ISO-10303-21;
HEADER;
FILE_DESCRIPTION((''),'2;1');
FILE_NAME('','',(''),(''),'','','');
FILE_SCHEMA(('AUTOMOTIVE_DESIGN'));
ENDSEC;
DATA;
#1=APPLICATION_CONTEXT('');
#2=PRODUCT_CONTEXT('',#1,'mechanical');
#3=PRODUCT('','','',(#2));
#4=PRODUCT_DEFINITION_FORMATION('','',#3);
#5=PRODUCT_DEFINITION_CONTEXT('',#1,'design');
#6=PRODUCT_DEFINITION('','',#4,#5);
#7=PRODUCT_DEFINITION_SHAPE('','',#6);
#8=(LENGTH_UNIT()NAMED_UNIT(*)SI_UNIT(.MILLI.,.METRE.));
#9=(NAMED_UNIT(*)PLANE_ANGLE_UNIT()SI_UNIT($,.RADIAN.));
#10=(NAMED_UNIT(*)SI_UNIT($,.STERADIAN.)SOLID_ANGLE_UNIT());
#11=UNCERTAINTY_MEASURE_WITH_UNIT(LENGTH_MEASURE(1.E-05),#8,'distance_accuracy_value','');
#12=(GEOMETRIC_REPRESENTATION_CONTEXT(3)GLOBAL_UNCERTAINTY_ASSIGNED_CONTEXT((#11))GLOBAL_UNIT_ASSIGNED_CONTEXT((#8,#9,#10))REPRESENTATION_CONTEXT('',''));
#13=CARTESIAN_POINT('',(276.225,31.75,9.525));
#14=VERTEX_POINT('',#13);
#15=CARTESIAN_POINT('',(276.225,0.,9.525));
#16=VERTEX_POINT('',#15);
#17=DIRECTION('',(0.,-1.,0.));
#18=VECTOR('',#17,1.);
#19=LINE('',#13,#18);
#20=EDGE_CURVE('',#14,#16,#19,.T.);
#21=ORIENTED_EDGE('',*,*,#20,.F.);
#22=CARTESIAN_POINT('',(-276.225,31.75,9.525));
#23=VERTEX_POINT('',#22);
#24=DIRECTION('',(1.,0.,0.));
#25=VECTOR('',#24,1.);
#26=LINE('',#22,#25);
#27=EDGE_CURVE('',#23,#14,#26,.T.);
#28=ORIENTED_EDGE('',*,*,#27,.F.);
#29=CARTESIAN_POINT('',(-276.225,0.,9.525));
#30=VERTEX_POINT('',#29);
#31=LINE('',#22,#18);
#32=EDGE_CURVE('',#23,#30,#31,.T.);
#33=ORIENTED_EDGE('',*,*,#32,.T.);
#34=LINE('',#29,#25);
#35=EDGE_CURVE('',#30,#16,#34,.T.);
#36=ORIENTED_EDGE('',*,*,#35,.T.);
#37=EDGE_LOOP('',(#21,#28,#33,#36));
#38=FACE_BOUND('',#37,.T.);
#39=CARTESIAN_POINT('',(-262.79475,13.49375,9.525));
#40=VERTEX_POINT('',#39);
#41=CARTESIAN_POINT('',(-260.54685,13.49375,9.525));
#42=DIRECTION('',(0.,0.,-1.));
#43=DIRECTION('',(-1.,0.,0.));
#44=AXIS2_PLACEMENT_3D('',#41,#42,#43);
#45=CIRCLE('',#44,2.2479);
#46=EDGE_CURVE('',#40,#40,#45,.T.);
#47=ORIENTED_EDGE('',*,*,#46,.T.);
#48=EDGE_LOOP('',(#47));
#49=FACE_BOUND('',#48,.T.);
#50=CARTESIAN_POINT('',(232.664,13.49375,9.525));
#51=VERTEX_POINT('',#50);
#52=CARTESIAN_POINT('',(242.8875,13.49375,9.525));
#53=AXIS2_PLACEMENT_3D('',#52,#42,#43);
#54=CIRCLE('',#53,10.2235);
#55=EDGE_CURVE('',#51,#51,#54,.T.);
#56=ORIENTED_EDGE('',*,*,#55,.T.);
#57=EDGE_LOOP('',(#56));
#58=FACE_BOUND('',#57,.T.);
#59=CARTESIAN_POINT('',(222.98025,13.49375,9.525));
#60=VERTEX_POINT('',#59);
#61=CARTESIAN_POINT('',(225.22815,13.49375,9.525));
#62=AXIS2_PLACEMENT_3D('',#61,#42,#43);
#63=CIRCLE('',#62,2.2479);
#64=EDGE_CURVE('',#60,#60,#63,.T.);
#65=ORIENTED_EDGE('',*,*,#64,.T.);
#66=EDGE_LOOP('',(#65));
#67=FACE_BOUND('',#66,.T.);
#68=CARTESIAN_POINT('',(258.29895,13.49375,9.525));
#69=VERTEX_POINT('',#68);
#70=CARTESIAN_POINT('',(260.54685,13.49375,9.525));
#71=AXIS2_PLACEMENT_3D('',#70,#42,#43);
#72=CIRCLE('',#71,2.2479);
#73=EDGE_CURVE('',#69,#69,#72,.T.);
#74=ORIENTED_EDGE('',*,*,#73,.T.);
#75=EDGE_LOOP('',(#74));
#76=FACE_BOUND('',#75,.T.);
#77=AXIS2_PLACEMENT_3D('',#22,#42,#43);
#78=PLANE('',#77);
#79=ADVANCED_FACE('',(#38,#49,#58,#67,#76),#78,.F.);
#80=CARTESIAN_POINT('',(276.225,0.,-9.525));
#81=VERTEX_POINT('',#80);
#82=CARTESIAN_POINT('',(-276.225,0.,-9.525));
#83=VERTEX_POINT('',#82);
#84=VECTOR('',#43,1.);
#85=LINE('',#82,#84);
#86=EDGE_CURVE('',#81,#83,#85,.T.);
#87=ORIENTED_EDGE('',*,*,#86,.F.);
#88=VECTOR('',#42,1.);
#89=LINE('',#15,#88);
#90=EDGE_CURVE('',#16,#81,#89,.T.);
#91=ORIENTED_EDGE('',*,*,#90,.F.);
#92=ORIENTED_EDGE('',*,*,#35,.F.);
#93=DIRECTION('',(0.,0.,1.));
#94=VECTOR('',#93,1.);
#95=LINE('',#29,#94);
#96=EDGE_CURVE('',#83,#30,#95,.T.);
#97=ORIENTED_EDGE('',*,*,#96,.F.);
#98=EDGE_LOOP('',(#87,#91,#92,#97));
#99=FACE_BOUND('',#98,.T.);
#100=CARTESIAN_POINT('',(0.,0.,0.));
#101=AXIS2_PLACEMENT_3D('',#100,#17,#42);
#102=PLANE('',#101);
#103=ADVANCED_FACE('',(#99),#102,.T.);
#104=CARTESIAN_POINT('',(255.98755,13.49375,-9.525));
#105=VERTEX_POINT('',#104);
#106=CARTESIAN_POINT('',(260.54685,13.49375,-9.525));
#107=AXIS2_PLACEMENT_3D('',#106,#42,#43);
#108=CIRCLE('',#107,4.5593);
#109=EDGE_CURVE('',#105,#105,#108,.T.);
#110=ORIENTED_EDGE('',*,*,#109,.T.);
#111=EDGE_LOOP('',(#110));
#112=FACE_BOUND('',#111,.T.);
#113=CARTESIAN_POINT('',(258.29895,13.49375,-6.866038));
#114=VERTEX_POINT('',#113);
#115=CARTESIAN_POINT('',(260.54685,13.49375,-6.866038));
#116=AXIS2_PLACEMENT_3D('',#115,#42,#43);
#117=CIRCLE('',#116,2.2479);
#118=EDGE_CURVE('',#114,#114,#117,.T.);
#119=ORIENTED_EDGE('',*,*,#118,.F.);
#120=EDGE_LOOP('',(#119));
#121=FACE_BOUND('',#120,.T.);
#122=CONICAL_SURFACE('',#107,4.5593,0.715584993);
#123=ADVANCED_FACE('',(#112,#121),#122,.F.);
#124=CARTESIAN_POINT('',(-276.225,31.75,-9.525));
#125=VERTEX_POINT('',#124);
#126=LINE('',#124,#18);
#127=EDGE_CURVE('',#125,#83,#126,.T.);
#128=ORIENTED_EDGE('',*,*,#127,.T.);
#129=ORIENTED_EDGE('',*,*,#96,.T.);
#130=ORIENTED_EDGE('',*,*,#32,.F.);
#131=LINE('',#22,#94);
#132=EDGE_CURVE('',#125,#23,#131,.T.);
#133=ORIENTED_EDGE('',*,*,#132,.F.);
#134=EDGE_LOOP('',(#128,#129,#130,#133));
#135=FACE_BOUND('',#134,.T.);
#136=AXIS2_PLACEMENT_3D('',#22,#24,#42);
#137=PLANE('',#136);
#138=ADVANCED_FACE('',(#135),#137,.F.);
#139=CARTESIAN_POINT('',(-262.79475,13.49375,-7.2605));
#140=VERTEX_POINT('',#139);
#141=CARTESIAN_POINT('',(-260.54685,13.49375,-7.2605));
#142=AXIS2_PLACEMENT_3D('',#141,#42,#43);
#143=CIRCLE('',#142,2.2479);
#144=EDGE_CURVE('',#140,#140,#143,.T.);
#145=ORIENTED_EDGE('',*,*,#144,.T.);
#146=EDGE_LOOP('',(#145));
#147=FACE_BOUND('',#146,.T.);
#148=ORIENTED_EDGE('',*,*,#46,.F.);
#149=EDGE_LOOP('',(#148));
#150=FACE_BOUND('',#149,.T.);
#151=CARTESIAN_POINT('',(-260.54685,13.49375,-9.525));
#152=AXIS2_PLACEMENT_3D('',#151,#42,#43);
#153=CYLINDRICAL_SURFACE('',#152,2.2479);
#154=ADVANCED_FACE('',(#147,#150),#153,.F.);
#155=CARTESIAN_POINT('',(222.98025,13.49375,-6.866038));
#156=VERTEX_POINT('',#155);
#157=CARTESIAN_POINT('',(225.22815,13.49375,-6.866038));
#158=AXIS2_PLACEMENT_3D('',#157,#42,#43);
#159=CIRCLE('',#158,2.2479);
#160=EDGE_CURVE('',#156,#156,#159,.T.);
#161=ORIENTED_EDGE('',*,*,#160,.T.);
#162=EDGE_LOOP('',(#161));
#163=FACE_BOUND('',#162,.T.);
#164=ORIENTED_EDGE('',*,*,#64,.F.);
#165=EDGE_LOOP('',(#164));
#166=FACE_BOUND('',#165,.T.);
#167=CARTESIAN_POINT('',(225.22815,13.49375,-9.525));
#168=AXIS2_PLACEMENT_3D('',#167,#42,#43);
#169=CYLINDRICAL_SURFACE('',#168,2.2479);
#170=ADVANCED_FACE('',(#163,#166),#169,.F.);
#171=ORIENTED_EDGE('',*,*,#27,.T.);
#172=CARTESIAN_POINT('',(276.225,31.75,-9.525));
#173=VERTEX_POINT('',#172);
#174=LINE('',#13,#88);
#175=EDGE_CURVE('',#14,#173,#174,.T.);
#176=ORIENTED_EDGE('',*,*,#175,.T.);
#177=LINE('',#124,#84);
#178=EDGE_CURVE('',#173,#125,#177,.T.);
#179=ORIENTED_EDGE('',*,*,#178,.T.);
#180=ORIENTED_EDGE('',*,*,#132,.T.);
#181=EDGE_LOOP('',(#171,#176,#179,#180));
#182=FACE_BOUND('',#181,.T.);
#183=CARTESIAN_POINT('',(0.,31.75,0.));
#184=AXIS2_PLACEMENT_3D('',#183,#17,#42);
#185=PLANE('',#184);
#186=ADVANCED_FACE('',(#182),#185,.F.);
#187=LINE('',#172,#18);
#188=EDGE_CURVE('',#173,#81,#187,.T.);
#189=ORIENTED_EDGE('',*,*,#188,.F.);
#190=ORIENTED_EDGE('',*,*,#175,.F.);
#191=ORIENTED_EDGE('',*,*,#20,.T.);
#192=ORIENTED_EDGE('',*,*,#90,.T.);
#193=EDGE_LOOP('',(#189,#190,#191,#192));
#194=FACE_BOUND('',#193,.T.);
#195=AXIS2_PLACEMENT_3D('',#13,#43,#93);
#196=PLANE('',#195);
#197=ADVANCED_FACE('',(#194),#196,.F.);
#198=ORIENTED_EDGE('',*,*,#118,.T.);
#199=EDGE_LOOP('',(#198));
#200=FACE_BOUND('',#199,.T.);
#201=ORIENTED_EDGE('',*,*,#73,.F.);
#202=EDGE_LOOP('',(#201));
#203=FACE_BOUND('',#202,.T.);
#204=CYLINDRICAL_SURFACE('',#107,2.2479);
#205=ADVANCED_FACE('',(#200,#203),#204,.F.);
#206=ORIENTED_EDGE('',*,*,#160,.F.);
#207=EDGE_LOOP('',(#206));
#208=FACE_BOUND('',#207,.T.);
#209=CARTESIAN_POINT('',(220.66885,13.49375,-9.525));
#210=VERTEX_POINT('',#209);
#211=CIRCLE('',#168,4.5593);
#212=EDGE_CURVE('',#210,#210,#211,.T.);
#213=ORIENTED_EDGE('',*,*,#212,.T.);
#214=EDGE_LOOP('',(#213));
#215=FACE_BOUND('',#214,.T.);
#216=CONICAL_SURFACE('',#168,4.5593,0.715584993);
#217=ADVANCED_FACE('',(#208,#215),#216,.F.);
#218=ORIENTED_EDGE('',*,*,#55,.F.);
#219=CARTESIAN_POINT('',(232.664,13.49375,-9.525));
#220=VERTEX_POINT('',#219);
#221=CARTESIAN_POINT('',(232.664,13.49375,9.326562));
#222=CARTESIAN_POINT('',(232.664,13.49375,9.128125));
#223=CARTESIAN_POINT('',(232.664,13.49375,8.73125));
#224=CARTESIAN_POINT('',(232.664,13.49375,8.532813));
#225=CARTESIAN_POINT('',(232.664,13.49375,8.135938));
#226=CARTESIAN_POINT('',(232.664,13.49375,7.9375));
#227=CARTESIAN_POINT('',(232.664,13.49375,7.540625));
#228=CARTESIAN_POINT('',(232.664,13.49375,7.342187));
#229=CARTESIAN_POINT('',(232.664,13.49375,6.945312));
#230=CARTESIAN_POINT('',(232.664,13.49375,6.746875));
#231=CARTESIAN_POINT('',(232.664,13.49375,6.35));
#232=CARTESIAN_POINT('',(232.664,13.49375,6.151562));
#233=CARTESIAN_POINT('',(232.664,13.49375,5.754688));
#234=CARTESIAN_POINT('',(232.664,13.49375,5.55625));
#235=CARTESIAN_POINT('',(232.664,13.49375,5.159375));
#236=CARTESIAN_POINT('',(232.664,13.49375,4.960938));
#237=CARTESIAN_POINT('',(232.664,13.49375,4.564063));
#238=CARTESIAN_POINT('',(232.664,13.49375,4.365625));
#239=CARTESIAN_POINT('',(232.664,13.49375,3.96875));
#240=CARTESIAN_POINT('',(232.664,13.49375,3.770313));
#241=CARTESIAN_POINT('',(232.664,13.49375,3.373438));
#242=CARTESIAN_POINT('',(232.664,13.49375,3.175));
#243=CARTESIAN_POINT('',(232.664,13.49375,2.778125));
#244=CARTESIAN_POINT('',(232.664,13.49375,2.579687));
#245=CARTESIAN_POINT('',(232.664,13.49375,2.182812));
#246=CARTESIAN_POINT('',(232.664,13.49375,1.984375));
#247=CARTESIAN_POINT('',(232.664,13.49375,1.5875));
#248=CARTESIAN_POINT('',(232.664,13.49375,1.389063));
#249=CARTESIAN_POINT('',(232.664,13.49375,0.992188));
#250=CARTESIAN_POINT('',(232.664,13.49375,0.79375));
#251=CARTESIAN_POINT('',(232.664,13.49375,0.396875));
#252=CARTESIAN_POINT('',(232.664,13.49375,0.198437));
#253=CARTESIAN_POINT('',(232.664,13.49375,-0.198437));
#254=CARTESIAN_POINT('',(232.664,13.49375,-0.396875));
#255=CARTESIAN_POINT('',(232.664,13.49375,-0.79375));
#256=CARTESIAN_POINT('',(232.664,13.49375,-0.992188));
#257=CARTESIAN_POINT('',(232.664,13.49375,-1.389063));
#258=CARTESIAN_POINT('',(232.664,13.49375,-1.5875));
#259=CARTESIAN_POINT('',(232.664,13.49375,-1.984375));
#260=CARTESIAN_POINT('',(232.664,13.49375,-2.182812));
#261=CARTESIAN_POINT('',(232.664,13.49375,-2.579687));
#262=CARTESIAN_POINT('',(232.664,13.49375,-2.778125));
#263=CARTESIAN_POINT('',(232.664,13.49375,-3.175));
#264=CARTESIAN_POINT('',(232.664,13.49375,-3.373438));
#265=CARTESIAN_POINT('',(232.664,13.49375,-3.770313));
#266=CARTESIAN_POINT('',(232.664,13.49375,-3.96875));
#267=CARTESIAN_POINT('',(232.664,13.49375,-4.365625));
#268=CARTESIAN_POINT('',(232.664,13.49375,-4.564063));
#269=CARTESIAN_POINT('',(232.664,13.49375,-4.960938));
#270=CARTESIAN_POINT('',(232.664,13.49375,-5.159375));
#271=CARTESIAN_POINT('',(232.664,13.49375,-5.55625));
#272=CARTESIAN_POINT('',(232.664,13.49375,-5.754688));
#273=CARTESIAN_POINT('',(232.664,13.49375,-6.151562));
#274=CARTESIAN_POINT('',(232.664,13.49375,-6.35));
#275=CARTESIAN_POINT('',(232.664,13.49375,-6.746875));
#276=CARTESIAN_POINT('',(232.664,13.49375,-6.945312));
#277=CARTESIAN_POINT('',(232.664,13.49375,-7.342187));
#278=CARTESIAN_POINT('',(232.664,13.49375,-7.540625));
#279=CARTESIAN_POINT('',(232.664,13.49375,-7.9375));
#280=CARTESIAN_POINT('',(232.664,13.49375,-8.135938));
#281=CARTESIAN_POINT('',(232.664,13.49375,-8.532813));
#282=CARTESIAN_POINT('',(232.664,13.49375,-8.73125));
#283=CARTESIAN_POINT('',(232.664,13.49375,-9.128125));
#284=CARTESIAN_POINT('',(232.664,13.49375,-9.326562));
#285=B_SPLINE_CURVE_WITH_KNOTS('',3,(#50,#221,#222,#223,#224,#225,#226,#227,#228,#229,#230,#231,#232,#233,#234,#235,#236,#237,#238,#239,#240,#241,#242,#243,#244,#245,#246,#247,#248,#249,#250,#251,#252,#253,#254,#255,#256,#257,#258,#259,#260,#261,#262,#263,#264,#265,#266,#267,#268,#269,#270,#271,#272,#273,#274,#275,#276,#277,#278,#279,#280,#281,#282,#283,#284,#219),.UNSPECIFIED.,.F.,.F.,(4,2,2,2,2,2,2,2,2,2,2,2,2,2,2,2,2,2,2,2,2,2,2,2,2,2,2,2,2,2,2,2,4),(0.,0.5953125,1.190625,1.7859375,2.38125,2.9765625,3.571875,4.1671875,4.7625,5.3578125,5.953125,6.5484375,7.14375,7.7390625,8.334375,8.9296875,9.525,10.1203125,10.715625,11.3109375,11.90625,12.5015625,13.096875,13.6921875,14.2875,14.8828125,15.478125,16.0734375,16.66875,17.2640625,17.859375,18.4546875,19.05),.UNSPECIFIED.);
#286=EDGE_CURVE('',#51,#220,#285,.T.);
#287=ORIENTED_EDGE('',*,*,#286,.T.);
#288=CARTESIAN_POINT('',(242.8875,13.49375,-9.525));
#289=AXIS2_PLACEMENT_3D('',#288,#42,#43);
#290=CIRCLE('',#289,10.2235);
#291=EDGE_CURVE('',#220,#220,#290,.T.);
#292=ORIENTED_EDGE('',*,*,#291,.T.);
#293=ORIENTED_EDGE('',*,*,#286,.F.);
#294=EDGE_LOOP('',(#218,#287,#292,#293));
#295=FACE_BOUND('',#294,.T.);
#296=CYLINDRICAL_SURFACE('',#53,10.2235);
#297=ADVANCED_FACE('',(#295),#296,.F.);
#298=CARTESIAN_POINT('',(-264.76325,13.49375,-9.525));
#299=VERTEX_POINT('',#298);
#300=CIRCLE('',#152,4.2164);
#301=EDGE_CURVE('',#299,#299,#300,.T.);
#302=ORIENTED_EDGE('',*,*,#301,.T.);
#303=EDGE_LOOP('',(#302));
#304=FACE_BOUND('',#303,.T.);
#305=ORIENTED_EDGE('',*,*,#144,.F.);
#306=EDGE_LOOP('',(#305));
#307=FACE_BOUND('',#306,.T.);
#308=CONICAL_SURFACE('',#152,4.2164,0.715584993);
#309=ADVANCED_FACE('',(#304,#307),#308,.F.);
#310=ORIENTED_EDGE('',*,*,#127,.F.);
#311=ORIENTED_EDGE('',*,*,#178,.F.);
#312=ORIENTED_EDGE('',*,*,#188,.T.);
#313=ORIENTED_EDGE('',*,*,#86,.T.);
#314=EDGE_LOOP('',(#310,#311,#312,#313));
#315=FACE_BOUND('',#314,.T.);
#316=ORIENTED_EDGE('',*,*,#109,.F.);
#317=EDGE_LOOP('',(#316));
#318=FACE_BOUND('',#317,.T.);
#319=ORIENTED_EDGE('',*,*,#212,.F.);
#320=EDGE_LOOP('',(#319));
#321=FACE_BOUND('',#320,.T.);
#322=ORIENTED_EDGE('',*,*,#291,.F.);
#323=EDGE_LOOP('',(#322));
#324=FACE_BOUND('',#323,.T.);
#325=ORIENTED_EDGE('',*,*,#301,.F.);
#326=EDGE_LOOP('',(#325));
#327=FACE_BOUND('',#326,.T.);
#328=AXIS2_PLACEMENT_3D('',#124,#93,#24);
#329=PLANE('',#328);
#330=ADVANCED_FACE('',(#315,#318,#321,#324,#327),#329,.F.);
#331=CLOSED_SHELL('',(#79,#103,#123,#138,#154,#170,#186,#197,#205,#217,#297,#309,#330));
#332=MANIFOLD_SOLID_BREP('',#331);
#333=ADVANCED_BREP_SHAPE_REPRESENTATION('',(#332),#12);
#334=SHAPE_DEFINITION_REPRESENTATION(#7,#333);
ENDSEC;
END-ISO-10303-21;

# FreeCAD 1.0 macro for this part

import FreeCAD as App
import Part
import Sketcher
from FreeCAD import Vector
Q = App.Units.Quantity


def add_polygon(sketch, points):
    """Adds a closed chain of lines whose ends are joined by coincident constraints."""
    first, n = sketch.GeometryCount, len(points)
    for a, b in zip(points, points[1:] + points[:1]):
        sketch.addGeometry(Part.LineSegment(App.Vector(*a, 0), App.Vector(*b, 0)), False)
    for i in range(n):
        sketch.addConstraint(Sketcher.Constraint("Coincident", first + i, 2, first + (i + 1) % n, 1))

doc = App.newDocument("Part")
body = doc.addObject("PartDesign::Body", "Body")

# Sketch on XZ plane
sketch1 = doc.addObject("Sketcher::SketchObject", "Sketch")
body.addObject(sketch1)
sketch1.AttachmentSupport = (doc.XZ_Plane, [""])
sketch1.MapMode = "FlatFace"
add_polygon(sketch1, [(-276.225, -9.525), (-276.225, 9.525), (276.225, 9.525), (276.225, -9.525)])  # lines 0-3
sketch1.addConstraint([
    Sketcher.Constraint("Vertical", 0),
    Sketcher.Constraint("Horizontal", 1),
    Sketcher.Constraint("Vertical", 2),
    Sketcher.Constraint("Horizontal", 3),
    Sketcher.Constraint("Symmetric", 0, 2, 2, 2, -1, 1),
    Sketcher.Constraint("DistanceX", 1, 1, 1, 2, Q("21.75 in")),
    Sketcher.Constraint("DistanceY", 0, 1, 0, 2, Q("0.75 in")),
])
pad1 = doc.addObject("PartDesign::Pad", "Pad")
body.addObject(pad1)
pad1.Profile = sketch1
pad1.Length = Q("1.25 in")
pad1.Reversed = True

# Sketch on XY plane
sketch2 = doc.addObject("Sketcher::SketchObject", "Sketch001")
body.addObject(sketch2)
sketch2.AttachmentSupport = (doc.XY_Plane, [""])
sketch2.MapMode = "FlatFace"
sketch2.AttachmentOffset = App.Placement(Vector(0, 0, -0.375 * 25.4), App.Rotation())
sketch2.addGeometry(Part.Circle(Vector(242.8875, 13.49375, 0), Vector(0, 0, 1), 10.2235), False)
sketch2.addConstraint([
    Sketcher.Constraint("Diameter", 0, Q("0.805 in")),
    Sketcher.Constraint("DistanceX", -1, 1, 0, 3, Q("9.5625 in")),
    Sketcher.Constraint("DistanceY", -1, 1, 0, 3, Q("0.53125 in")),
])
pocket1 = doc.addObject("PartDesign::Pocket", "Pocket")
body.addObject(pocket1)
pocket1.Profile = sketch2
pocket1.Type = "ThroughAll"
pocket1.Reversed = True

# Sketch on XY plane
sketch3 = doc.addObject("Sketcher::SketchObject", "Sketch002")
body.addObject(sketch3)
sketch3.AttachmentSupport = (doc.XY_Plane, [""])
sketch3.MapMode = "FlatFace"
sketch3.AttachmentOffset = App.Placement(Vector(0, 0, -0.375 * 25.4), App.Rotation())
sketch3.addGeometry([
    Part.Circle(Vector(260.54685, 13.49375, 0), Vector(0, 0, 1), 2.2479),
    Part.Circle(Vector(225.22815, 13.49375, 0), Vector(0, 0, 1), 2.2479),
], False)
sketch3.addConstraint([
    Sketcher.Constraint("Equal", 0, 1),
    Sketcher.Constraint("Horizontal", 0, 3, 1, 3),
    Sketcher.Constraint("Diameter", 0, Q("0.177 in")),
    Sketcher.Constraint("DistanceY", -1, 1, 0, 3, Q("0.53125 in")),
    Sketcher.Constraint("DistanceX", 1, 3, 0, 3, Q("1.3905 in")),
    Sketcher.Constraint("DistanceX", -1, 1, 0, 3, 260.54685),
])
doc.recompute()
hole = doc.addObject("PartDesign::Hole", "Hole")
body.addObject(hole)
hole.Profile = sketch3
hole.ThreadType = "None"
hole.Diameter = Q("0.177 in")
hole.DepthType = "ThroughAll"
hole.HoleCutType = "Countersink"
hole.HoleCutDiameter = Q("0.359 in")
hole.HoleCutCountersinkAngle = 82
hole.Reversed = True

# Sketch on XY plane
sketch4 = doc.addObject("Sketcher::SketchObject", "Sketch003")
body.addObject(sketch4)
sketch4.AttachmentSupport = (doc.XY_Plane, [""])
sketch4.MapMode = "FlatFace"
sketch4.AttachmentOffset = App.Placement(Vector(0, 0, -0.375 * 25.4), App.Rotation())
sketch4.addGeometry(Part.Circle(Vector(-260.54685, 13.49375, 0), Vector(0, 0, 1), 2.2479), False)
sketch4.addConstraint([
    Sketcher.Constraint("Diameter", 0, Q("0.177 in")),
    Sketcher.Constraint("DistanceY", -1, 1, 0, 3, Q("0.53125 in")),
    Sketcher.Constraint("DistanceX", 0, 3, -1, 1, 260.54685),
])
doc.recompute()
hole2 = doc.addObject("PartDesign::Hole", "Hole001")
body.addObject(hole2)
hole2.Profile = sketch4
hole2.ThreadType = "None"
hole2.Diameter = Q("0.177 in")
hole2.DepthType = "ThroughAll"
hole2.HoleCutType = "Countersink"
hole2.HoleCutDiameter = Q("0.332 in")
hole2.HoleCutCountersinkAngle = 82
hole2.Reversed = True

doc.recompute()
